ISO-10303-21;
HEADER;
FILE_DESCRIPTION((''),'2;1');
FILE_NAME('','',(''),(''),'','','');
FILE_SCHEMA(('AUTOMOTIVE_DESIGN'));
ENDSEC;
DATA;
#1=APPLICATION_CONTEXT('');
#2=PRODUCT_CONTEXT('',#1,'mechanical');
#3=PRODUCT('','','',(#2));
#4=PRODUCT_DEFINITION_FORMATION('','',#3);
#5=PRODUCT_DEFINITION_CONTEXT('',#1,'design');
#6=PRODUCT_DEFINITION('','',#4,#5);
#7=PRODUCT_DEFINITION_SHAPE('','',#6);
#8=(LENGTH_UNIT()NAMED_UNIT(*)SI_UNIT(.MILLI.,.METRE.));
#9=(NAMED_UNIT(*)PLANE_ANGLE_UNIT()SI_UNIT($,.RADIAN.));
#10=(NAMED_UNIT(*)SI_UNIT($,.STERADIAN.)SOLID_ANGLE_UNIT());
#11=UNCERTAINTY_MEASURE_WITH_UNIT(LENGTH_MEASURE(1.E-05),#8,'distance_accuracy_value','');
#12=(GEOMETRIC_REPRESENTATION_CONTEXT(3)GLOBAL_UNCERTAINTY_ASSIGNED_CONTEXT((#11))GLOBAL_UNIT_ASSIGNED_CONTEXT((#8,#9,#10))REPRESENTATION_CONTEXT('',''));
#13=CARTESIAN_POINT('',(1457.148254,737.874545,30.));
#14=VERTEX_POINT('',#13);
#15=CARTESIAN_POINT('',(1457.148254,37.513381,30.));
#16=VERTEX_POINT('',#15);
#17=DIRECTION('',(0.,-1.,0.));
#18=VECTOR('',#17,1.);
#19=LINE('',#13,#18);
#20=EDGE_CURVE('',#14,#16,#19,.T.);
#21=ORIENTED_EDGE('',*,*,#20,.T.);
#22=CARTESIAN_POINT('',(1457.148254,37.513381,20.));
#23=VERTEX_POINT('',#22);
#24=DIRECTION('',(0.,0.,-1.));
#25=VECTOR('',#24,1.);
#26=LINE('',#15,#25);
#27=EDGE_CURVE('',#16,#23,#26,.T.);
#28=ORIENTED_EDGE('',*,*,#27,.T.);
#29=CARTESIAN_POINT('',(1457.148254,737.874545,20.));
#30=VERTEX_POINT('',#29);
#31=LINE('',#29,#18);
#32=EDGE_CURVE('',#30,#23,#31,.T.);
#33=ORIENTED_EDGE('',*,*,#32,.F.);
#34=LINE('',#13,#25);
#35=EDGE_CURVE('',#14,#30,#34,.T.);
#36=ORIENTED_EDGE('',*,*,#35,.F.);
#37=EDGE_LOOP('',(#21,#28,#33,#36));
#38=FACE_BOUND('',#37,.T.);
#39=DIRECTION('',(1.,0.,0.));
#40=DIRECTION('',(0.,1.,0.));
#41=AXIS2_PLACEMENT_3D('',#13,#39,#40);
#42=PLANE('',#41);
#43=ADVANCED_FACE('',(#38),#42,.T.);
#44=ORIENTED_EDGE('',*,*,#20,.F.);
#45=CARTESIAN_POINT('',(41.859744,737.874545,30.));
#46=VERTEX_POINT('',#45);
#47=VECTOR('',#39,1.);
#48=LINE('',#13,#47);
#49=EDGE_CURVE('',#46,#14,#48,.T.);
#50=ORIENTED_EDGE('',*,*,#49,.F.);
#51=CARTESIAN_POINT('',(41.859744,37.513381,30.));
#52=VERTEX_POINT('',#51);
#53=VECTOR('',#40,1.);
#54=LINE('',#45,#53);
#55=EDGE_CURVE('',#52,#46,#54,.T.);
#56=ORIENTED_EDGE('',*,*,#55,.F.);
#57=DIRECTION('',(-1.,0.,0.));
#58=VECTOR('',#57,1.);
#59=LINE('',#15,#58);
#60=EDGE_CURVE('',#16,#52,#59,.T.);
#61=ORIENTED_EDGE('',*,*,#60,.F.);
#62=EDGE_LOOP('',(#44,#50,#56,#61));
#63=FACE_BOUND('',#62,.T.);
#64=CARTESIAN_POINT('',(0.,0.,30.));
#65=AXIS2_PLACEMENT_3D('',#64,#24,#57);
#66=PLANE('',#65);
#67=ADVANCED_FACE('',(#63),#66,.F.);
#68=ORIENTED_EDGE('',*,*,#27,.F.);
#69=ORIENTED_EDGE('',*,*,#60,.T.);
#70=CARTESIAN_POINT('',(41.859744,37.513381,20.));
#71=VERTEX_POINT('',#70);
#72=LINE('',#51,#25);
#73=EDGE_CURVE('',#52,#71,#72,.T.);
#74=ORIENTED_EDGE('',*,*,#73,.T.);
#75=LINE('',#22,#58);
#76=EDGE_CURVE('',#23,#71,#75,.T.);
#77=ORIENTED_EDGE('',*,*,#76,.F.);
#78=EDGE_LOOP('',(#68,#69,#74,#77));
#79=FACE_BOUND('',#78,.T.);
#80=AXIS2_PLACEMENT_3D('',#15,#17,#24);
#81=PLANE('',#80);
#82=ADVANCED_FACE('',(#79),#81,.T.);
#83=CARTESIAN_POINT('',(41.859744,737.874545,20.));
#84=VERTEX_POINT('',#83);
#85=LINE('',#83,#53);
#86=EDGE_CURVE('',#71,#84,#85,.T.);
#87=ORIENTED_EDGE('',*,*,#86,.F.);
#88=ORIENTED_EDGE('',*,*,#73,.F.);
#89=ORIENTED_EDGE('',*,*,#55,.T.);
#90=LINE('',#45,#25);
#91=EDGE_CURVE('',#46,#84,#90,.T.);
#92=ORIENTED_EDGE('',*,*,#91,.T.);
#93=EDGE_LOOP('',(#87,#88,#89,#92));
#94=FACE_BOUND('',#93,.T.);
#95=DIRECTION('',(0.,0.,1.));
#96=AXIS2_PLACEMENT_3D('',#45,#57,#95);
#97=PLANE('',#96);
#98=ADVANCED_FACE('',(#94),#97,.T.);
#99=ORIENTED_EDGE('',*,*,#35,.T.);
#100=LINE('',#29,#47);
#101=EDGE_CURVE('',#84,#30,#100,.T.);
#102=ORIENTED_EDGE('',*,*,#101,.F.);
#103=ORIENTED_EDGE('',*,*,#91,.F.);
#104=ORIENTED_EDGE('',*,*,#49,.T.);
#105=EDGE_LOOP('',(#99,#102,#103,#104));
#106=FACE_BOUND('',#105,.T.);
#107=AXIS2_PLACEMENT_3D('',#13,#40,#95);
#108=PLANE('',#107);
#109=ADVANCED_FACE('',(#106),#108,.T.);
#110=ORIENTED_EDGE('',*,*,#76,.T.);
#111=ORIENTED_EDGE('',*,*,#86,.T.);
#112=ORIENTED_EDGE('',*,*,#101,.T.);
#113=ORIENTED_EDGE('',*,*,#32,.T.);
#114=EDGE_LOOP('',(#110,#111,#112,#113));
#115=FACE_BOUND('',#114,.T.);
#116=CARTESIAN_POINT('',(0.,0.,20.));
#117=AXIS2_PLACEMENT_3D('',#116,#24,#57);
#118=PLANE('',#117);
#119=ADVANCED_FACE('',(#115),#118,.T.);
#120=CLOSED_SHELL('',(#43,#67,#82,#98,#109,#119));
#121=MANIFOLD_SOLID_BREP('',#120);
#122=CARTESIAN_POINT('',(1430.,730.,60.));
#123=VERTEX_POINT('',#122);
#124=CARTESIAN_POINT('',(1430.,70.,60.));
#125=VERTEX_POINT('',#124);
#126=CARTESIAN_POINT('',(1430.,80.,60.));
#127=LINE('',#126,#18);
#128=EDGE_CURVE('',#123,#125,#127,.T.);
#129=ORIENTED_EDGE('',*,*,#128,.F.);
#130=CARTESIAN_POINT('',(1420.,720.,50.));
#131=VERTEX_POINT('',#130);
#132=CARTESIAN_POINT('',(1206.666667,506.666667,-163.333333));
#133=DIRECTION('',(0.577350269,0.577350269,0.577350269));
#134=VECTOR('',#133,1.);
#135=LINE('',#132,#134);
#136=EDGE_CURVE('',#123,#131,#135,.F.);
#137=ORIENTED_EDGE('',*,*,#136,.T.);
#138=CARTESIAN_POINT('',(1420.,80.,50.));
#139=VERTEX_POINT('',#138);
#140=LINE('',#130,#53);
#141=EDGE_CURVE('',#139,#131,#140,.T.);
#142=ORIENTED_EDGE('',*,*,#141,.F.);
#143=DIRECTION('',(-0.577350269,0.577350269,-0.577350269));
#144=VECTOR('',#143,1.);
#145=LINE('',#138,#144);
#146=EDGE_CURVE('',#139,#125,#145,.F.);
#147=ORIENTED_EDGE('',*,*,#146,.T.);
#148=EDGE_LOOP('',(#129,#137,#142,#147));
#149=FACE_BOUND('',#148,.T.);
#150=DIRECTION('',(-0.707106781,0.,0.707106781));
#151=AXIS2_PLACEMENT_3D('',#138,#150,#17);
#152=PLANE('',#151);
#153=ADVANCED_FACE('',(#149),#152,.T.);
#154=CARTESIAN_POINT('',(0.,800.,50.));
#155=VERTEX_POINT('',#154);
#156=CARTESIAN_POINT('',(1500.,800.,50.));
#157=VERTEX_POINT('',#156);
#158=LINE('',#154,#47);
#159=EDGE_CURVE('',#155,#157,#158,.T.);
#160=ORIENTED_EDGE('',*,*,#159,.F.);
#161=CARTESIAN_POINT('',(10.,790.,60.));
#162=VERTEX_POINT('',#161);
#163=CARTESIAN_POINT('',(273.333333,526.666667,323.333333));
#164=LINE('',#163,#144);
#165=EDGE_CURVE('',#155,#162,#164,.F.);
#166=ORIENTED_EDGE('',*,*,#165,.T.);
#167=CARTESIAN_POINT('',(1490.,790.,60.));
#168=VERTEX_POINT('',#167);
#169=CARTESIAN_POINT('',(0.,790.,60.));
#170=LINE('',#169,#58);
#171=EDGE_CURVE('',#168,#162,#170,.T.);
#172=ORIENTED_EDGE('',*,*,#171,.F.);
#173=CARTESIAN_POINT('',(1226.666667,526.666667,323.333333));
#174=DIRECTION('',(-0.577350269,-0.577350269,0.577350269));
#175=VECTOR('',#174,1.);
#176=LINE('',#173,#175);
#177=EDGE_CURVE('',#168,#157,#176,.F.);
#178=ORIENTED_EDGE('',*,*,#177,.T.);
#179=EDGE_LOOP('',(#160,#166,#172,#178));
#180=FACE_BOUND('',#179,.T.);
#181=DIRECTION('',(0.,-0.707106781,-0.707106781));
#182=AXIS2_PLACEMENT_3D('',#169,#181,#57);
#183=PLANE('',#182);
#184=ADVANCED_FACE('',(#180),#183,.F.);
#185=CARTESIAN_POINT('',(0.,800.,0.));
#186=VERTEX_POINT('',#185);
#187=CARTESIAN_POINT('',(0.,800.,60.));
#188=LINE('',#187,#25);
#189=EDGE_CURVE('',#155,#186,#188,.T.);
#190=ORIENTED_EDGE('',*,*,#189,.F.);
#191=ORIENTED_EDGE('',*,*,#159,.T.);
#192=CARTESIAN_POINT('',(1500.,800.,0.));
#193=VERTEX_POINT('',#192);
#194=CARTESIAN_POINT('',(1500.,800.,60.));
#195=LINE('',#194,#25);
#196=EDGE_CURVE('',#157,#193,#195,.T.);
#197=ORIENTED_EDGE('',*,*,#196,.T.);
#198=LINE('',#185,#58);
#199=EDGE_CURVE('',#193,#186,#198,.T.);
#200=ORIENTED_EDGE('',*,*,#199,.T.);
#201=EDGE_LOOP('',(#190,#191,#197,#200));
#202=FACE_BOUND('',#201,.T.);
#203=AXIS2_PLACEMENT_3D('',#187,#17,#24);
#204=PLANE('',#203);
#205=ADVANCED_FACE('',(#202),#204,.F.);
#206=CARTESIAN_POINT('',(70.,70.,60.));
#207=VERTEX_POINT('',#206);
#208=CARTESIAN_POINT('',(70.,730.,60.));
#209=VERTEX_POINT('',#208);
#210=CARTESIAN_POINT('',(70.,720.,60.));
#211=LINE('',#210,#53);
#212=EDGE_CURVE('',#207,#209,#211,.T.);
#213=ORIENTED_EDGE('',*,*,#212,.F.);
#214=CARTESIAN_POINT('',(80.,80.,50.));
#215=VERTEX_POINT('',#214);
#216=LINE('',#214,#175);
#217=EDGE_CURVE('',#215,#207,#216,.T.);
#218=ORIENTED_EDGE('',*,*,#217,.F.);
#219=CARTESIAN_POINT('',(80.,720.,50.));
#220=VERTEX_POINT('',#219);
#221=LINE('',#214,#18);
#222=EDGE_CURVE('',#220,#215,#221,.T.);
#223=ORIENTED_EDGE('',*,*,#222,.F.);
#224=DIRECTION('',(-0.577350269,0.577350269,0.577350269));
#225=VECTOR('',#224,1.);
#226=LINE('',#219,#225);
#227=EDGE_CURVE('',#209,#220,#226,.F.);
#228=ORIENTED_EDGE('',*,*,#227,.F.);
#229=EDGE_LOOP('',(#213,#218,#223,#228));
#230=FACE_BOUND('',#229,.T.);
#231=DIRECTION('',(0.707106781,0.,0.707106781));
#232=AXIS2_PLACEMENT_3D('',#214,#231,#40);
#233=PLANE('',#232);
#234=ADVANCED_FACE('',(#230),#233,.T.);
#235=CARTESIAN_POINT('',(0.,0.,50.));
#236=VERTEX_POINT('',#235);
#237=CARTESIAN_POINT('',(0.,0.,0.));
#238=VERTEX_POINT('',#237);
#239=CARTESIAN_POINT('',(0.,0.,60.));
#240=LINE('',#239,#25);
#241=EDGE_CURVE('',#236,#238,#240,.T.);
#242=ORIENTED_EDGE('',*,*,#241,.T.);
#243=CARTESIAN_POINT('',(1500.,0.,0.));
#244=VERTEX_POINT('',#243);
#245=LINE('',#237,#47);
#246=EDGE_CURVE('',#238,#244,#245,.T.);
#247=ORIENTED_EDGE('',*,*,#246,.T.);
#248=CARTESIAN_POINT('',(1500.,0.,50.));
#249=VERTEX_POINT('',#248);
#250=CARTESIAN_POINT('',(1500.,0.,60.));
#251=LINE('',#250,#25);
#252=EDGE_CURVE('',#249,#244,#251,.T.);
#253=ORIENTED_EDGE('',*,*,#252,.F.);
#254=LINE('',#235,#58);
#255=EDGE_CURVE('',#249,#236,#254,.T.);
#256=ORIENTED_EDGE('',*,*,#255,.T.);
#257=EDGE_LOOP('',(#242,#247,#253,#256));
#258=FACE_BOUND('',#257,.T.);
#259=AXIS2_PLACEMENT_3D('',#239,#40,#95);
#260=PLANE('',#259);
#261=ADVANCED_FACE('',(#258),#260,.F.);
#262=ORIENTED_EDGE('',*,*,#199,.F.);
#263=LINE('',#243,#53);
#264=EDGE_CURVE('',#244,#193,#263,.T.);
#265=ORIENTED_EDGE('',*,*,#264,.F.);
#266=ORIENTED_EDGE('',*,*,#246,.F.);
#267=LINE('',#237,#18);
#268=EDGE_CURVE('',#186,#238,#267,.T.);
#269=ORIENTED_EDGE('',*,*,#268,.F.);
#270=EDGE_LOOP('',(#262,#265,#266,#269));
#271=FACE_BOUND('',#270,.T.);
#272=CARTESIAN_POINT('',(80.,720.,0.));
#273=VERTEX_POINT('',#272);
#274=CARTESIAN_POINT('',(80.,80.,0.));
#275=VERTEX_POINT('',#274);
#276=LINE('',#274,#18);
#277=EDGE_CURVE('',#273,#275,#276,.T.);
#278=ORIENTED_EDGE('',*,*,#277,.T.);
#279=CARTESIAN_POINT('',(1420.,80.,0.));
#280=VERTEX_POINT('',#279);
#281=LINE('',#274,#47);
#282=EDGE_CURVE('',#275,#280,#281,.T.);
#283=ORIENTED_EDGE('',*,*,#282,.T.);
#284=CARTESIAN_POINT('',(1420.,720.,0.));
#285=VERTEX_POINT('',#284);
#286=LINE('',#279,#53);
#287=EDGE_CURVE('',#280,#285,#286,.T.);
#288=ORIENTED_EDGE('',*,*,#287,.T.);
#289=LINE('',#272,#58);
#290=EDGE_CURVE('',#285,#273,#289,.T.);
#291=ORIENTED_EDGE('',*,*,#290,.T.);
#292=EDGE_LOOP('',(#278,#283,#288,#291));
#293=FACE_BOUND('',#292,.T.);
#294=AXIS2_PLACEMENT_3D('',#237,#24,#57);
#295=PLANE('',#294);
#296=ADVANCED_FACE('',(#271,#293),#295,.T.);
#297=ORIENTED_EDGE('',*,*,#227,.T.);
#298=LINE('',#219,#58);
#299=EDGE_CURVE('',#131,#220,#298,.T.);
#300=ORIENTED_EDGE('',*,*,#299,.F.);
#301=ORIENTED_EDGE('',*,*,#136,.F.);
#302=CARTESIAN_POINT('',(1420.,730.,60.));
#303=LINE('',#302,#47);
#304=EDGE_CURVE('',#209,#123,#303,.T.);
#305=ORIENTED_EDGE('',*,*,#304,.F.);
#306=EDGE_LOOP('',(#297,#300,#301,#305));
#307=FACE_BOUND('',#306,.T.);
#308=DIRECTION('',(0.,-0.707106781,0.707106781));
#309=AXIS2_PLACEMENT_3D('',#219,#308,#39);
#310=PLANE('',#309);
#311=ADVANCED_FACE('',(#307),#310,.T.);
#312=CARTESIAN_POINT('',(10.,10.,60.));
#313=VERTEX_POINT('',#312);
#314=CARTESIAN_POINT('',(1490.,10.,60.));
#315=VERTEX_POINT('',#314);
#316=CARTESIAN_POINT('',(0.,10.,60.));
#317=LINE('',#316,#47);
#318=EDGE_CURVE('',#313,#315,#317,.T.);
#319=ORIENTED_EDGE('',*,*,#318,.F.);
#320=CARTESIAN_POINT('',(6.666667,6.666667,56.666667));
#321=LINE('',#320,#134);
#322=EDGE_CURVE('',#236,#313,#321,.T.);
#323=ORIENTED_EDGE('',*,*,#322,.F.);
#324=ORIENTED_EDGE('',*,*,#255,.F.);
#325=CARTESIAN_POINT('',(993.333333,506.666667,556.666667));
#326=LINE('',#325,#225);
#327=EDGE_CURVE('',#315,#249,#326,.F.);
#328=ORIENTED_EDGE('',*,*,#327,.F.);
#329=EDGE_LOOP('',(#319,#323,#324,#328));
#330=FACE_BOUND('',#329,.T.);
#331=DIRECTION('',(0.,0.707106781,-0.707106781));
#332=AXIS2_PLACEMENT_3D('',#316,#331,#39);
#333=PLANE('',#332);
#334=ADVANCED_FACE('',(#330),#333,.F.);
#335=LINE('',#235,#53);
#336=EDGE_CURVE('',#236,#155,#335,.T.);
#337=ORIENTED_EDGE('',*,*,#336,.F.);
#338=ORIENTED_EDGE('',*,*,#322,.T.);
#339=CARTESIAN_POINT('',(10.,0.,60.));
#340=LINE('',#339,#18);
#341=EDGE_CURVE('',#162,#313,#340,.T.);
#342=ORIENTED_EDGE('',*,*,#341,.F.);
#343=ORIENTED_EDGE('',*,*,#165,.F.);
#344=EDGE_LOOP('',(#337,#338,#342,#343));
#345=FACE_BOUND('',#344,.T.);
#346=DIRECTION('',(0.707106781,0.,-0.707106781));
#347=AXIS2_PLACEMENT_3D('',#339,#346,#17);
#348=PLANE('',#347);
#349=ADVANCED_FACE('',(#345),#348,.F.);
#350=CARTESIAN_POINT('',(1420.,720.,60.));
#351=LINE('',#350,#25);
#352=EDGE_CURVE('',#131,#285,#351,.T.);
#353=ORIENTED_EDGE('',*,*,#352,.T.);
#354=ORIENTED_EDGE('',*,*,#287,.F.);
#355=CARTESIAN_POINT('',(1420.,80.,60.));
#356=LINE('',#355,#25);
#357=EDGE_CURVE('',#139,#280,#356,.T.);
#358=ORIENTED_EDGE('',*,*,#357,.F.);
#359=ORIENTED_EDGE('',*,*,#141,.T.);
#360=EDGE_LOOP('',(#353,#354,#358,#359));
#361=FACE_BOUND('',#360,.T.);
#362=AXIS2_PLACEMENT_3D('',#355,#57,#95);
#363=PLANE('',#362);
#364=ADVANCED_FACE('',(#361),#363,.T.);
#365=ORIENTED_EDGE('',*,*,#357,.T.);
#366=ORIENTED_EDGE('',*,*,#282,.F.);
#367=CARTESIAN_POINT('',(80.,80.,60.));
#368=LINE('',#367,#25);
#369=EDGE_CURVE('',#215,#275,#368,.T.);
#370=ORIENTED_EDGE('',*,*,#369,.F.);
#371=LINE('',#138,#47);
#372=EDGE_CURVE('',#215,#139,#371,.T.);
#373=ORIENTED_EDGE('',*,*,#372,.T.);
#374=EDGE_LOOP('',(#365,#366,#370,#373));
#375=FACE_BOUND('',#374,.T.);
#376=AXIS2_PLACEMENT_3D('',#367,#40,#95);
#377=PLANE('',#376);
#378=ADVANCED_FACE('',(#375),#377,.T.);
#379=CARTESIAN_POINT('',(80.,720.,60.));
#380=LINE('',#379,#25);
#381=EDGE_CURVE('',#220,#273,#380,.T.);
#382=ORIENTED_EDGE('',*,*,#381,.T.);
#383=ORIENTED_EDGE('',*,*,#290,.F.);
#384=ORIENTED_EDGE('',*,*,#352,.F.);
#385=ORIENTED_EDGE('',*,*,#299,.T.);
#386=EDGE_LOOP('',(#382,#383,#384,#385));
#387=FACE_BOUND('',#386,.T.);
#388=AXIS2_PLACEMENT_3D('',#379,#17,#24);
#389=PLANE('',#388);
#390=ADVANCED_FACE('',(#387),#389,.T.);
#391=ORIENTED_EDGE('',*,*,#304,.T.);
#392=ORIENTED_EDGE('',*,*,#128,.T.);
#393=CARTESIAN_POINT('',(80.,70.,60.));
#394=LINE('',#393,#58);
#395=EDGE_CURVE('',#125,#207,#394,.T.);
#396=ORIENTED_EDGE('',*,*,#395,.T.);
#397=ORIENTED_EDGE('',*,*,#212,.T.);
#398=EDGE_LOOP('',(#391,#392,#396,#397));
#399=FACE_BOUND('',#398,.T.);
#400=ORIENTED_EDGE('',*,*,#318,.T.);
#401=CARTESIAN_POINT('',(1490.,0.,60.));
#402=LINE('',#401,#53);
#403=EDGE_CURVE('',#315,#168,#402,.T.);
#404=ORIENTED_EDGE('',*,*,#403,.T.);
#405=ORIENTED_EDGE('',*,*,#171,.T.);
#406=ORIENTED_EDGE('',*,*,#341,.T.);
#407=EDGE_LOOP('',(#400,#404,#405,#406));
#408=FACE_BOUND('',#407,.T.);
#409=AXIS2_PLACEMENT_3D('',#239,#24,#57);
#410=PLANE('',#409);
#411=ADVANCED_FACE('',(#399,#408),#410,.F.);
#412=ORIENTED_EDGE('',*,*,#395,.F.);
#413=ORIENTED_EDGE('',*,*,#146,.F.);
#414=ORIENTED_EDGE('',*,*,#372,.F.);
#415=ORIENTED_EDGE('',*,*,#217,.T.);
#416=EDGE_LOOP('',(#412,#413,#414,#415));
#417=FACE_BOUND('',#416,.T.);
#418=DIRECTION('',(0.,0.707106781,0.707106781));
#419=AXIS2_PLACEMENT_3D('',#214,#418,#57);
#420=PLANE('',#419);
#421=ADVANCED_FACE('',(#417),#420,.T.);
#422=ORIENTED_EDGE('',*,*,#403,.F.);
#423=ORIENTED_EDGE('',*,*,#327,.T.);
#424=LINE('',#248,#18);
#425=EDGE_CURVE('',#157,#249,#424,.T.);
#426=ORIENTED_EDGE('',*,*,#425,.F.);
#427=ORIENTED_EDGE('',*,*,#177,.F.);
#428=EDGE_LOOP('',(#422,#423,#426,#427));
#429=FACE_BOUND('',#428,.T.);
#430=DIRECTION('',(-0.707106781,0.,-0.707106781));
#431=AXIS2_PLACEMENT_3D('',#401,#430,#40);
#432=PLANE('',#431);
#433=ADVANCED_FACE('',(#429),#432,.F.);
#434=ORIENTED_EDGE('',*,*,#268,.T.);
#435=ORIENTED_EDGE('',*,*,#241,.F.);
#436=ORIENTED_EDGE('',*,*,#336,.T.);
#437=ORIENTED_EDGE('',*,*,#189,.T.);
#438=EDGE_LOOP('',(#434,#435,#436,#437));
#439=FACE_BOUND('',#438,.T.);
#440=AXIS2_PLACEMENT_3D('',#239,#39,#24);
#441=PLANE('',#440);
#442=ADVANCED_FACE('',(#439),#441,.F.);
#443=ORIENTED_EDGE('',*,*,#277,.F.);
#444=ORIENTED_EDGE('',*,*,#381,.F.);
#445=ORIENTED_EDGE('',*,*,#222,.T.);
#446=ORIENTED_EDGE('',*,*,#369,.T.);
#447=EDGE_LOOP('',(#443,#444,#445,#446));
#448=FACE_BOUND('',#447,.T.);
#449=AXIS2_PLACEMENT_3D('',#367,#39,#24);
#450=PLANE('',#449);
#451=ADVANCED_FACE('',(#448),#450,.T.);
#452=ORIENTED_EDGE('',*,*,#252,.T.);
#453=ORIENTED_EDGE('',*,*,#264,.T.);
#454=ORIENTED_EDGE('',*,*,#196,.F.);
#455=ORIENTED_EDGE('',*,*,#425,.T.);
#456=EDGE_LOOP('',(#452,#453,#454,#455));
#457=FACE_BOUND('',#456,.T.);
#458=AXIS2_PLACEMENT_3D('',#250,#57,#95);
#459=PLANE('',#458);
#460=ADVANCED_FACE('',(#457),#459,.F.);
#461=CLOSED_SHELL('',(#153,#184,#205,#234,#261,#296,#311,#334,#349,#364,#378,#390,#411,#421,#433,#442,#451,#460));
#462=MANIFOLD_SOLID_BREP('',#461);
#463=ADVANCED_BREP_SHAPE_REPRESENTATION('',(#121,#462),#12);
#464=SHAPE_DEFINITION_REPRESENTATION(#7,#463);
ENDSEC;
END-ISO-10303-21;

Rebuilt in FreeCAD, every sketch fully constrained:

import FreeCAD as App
import Part
import Sketcher
Q = App.Units.Quantity


def edges_at(feature, points):
    """Names of the edges that pass closest to the given points."""
    edges = feature.Shape.Edges
    near = lambda p: min(range(len(edges)), key=lambda i: edges[i].distToShape(Part.Vertex(*p))[0])
    return sorted({f"Edge{near(p) + 1}" for p in points})


def add_polygon(sketch, points):
    """Adds a closed chain of lines whose ends are joined by coincident constraints."""
    first, n = sketch.GeometryCount, len(points)
    for a, b in zip(points, points[1:] + points[:1]):
        sketch.addGeometry(Part.LineSegment(App.Vector(*a, 0), App.Vector(*b, 0)), False)
    for i in range(n):
        sketch.addConstraint(Sketcher.Constraint("Coincident", first + i, 2, first + (i + 1) % n, 1))

doc = App.newDocument("Part")
body = doc.addObject("PartDesign::Body", "Body")

sketch1 = doc.addObject("Sketcher::SketchObject", "Sketch")
body.addObject(sketch1)
sketch1.AttachmentSupport = (doc.XY_Plane, [""])
sketch1.MapMode = "FlatFace"
add_polygon(sketch1, [(0, 800), (0, 0), (1500, 0), (1500, 800)])
add_polygon(sketch1, [(1420, 80), (80, 80), (80, 720), (1420, 720)])
sketch1.addConstraint(Sketcher.Constraint("Vertical", 0))
sketch1.addConstraint(Sketcher.Constraint("Horizontal", 1))
sketch1.addConstraint(Sketcher.Constraint("Vertical", 2))
sketch1.addConstraint(Sketcher.Constraint("Horizontal", 3))
sketch1.addConstraint(Sketcher.Constraint("Horizontal", 4))
sketch1.addConstraint(Sketcher.Constraint("Vertical", 5))
sketch1.addConstraint(Sketcher.Constraint("Horizontal", 6))
sketch1.addConstraint(Sketcher.Constraint("Vertical", 7))
sketch1.addConstraint(Sketcher.Constraint("Coincident", 0, 2, -1, 1))
sketch1.addConstraint(Sketcher.Constraint("DistanceX", 1, 1, 1, 2, Q("1500 mm")))
sketch1.addConstraint(Sketcher.Constraint("DistanceX", 4, 2, 4, 1, Q("1340 mm")))
sketch1.addConstraint(Sketcher.Constraint("DistanceY", 0, 2, 0, 1, Q("800 mm")))
sketch1.addConstraint(Sketcher.Constraint("DistanceY", 5, 1, 5, 2, Q("640 mm")))
sketch1.addConstraint(Sketcher.Constraint("DistanceX", -1, 1, 4, 2, Q("80 mm")))
sketch1.addConstraint(Sketcher.Constraint("DistanceY", -1, 1, 4, 2, Q("80 mm")))
pad1 = doc.addObject("PartDesign::Pad", "Pad")
body.addObject(pad1)
pad1.Profile = sketch1
pad1.Length = 60
doc.recompute()

chamfer = doc.addObject("PartDesign::Chamfer", "Chamfer")
body.addObject(chamfer)
chamfer.Base = (pad1, edges_at(pad1, [
    (1500, 400, 60),
    (750, 80, 60),
    (750, 800, 60),
    (1420, 400, 60),
    (750, 720, 60),
    (80, 400, 60),
    (0, 400, 60),
    (750, 0, 60),
]))
chamfer.Size = 10
body2 = doc.addObject("PartDesign::Body", "Body001")

sketch2 = doc.addObject("Sketcher::SketchObject", "Sketch001")
body2.addObject(sketch2)
sketch2.AttachmentSupport = (doc.getObject("XY_Plane001"), [""])
sketch2.MapMode = "FlatFace"
sketch2.AttachmentOffset = App.Placement(App.Vector(0, 0, 20), App.Rotation())
add_polygon(sketch2, [(1457, 738), (1457, 38), (42, 38), (42, 738)])
sketch2.addConstraint(Sketcher.Constraint("Vertical", 0))
sketch2.addConstraint(Sketcher.Constraint("Horizontal", 1))
sketch2.addConstraint(Sketcher.Constraint("Vertical", 2))
sketch2.addConstraint(Sketcher.Constraint("Horizontal", 3))
sketch2.addConstraint(Sketcher.Constraint("DistanceX", 1, 2, 1, 1, Q("1415.28851 mm")))
sketch2.addConstraint(Sketcher.Constraint("DistanceY", 0, 2, 0, 1, Q("700.361164 mm")))
sketch2.addConstraint(Sketcher.Constraint("DistanceY", -1, 1, 0, 2, Q("37.513381 mm")))
sketch2.addConstraint(Sketcher.Constraint("DistanceX", -1, 1, 0, 2, Q("1457.148254 mm")))
pad2 = doc.addObject("PartDesign::Pad", "Pad001")
body2.addObject(pad2)
pad2.Profile = sketch2
pad2.Length = 10

doc.recompute()
